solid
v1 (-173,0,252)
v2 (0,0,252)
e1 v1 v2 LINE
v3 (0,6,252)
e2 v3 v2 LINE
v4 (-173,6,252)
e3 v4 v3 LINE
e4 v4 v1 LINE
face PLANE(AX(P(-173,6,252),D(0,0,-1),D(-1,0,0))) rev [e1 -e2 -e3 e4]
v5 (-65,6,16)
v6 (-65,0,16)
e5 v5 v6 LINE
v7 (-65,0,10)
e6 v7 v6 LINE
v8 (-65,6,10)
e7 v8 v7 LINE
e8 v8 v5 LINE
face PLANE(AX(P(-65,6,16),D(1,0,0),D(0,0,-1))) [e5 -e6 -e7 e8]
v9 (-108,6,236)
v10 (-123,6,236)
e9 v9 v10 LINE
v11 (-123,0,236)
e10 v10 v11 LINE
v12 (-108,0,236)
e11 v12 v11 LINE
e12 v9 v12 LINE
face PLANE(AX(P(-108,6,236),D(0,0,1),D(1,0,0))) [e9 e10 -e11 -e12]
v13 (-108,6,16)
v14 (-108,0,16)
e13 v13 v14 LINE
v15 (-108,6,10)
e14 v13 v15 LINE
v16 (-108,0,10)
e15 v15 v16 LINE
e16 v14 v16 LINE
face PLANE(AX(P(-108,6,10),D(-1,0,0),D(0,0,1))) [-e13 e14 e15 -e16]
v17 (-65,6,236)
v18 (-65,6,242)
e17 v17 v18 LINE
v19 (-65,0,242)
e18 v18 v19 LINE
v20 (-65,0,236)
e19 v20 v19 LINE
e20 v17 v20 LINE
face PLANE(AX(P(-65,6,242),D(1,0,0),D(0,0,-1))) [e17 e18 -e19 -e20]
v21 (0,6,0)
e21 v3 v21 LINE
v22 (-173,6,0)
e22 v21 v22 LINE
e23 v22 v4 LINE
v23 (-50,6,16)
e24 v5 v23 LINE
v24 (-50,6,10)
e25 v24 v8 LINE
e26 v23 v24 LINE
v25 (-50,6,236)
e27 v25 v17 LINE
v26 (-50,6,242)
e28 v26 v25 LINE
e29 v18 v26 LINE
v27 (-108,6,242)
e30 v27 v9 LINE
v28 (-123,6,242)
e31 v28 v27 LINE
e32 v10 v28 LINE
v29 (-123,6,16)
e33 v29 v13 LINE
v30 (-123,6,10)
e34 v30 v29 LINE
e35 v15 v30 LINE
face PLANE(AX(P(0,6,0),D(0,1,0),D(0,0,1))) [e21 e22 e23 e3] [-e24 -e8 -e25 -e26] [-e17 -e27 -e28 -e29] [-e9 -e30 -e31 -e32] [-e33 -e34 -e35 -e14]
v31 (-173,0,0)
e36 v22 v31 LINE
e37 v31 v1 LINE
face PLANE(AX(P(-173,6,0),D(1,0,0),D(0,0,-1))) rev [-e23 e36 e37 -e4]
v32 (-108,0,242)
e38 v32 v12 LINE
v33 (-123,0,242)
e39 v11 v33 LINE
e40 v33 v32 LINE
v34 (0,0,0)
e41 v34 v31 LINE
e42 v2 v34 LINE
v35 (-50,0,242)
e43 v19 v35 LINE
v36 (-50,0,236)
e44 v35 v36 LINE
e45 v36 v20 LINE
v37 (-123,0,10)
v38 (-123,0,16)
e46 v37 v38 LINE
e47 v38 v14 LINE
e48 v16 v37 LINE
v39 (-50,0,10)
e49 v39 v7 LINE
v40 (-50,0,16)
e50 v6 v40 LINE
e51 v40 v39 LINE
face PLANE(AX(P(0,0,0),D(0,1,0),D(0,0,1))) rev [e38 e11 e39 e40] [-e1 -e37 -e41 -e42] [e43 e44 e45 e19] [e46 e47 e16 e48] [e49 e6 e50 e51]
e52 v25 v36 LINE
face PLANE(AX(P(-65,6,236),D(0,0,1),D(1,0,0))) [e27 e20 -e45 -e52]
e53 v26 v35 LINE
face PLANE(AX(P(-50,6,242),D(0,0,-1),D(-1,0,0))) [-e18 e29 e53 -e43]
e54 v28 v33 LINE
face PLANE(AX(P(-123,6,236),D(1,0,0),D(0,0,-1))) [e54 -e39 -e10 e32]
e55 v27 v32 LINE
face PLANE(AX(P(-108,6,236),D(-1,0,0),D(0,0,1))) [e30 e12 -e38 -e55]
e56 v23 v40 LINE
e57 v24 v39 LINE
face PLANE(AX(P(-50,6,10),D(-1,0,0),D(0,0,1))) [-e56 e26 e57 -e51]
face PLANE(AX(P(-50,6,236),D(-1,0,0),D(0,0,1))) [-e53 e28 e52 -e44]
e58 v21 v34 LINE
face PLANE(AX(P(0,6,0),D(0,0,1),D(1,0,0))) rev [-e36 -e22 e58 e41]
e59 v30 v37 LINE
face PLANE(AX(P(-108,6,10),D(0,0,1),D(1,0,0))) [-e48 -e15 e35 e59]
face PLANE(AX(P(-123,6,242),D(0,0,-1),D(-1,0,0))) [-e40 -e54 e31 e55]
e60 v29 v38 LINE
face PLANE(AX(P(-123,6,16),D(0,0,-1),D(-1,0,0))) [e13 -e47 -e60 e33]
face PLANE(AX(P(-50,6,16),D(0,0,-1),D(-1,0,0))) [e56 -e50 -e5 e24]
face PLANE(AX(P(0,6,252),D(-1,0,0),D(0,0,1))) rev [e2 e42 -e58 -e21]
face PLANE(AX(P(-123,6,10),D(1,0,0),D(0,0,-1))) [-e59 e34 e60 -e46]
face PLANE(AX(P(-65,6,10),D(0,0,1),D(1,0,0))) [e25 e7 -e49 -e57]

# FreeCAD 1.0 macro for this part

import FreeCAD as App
import Part
import Sketcher
from FreeCAD import Vector


def add_polygon(sketch, points):
    """Adds a closed chain of lines whose ends are joined by coincident constraints."""
    first, n = sketch.GeometryCount, len(points)
    for a, b in zip(points, points[1:] + points[:1]):
        sketch.addGeometry(Part.LineSegment(App.Vector(*a, 0), App.Vector(*b, 0)), False)
    for i in range(n):
        sketch.addConstraint(Sketcher.Constraint("Coincident", first + i, 2, first + (i + 1) % n, 1))

doc = App.newDocument("Part")
body = doc.addObject("PartDesign::Body", "Body")

sketch1 = body.newObject("Sketcher::SketchObject", "Sketch")
sketch1.AttachmentSupport = (doc.getObject("XZ_Plane"), [""])
sketch1.MapMode = "FlatFace"
add_polygon(sketch1, [(-173, 0), (-173, 252), (0, 252), (0, 0)])
add_polygon(sketch1, [(-108, 242), (-123, 242), (-123, 236), (-108, 236)])
add_polygon(sketch1, [(-50, 242), (-65, 242), (-65, 236), (-50, 236)])
add_polygon(sketch1, [(-108, 16), (-123, 16), (-123, 10), (-108, 10)])
add_polygon(sketch1, [(-50, 16), (-65, 16), (-65, 10), (-50, 10)])
sketch1.addConstraint([
    Sketcher.Constraint("Vertical", 0),
    Sketcher.Constraint("Horizontal", 1),
    Sketcher.Constraint("Vertical", 2),
    Sketcher.Constraint("Horizontal", 3),
    Sketcher.Constraint("Horizontal", 4),
    Sketcher.Constraint("Vertical", 5),
    Sketcher.Constraint("Horizontal", 6),
    Sketcher.Constraint("Vertical", 7),
    Sketcher.Constraint("Horizontal", 8),
    Sketcher.Constraint("Vertical", 9),
    Sketcher.Constraint("Horizontal", 10),
    Sketcher.Constraint("Vertical", 11),
    Sketcher.Constraint("Horizontal", 12),
    Sketcher.Constraint("Vertical", 13),
    Sketcher.Constraint("Horizontal", 14),
    Sketcher.Constraint("Vertical", 15),
    Sketcher.Constraint("Horizontal", 16),
    Sketcher.Constraint("Vertical", 17),
    Sketcher.Constraint("Horizontal", 18),
    Sketcher.Constraint("Vertical", 19),
    Sketcher.Constraint("Coincident", 2, 2, -1, 1),
    Sketcher.Constraint("Horizontal", 7, 2, 8, 2),
    Sketcher.Constraint("Horizontal", 6, 2, 9, 2),
    Sketcher.Constraint("Horizontal", 15, 2, 16, 2),
    Sketcher.Constraint("Horizontal", 14, 2, 17, 2),
    Sketcher.Constraint("Vertical", 5, 2, 12, 2),
    Sketcher.Constraint("Vertical", 7, 2, 14, 2),
    Sketcher.Constraint("Vertical", 9, 2, 16, 2),
    Sketcher.Constraint("Vertical", 11, 2, 18, 2),
    Sketcher.Constraint("Equal", 6, 8),
    Sketcher.Constraint("Equal", 11, 13),
    Sketcher.Constraint("DistanceX", 1, 1, 1, 2, 173.0),
    Sketcher.Constraint("DistanceX", 4, 2, 4, 1, 15.0),
    Sketcher.Constraint("DistanceY", 0, 1, 0, 2, 252.0),
    Sketcher.Constraint("DistanceY", 5, 2, 5, 1, 6.0),
    Sketcher.Constraint("DistanceX", 4, 2, -1, 1, 123.0),
    Sketcher.Constraint("DistanceY", -1, 1, 4, 2, 242.0),
    Sketcher.Constraint("DistanceX", 8, 2, -1, 1, 65.0),
    Sketcher.Constraint("DistanceY", -1, 1, 12, 2, 16.0),
])
pad1 = body.newObject("PartDesign::Pad", "Pad")
pad1.Profile = sketch1
pad1.Length = 6
pad1.Reversed = True

doc.recompute()
